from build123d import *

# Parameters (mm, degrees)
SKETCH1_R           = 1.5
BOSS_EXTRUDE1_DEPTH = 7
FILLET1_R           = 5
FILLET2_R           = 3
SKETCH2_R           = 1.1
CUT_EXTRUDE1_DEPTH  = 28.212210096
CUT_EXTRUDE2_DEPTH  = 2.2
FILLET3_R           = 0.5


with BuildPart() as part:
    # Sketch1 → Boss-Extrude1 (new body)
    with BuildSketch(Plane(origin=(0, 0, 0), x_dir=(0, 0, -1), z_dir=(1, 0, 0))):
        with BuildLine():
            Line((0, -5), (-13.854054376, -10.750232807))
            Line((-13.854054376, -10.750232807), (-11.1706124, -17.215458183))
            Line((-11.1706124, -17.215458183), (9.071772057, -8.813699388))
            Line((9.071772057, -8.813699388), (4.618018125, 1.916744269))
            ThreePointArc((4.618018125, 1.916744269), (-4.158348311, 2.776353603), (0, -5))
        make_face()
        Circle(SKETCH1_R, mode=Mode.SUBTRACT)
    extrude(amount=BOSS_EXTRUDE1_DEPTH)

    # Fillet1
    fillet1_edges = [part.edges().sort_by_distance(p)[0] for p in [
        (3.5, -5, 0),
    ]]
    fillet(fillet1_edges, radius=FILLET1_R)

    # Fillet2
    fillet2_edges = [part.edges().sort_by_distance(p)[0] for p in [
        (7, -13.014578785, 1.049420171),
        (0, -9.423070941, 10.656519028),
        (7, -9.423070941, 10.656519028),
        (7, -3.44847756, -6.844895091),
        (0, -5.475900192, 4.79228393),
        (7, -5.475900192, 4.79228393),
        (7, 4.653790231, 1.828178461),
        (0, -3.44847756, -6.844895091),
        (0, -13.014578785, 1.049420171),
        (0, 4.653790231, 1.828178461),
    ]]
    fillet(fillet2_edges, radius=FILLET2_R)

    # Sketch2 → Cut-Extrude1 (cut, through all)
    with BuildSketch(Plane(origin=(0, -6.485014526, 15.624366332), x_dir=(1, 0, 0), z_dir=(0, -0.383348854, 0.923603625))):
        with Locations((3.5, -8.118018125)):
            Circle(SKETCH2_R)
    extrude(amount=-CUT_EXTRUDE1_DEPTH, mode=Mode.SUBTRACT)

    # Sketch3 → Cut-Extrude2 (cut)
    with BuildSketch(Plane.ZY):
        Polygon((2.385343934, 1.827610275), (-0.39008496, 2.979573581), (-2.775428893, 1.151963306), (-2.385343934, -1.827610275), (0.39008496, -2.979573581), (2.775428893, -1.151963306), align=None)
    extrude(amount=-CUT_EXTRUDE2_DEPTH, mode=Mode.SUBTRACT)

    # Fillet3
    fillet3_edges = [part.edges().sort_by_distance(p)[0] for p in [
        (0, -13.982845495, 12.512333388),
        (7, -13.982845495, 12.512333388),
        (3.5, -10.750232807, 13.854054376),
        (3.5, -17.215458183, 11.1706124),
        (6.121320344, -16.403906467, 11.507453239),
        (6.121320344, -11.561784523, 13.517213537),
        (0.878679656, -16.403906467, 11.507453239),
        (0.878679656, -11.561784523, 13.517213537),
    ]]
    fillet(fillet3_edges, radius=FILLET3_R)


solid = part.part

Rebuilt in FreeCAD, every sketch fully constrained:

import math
import FreeCAD as App
import Part
import Sketcher

V = App.Vector
Q = App.Units.Quantity


def edges_at(feature, points):
    """Names of the edges that pass closest to the given points."""
    edges = feature.Shape.Edges
    near = lambda p: min(range(len(edges)), key=lambda i: edges[i].distToShape(Part.Vertex(*p))[0])
    return sorted({f"Edge{near(p) + 1}" for p in points})


def add_polygon(sketch, points):
    """Adds a closed chain of lines whose ends are joined by coincident constraints."""
    first, n = sketch.GeometryCount, len(points)
    for a, b in zip(points, points[1:] + points[:1]):
        sketch.addGeometry(Part.LineSegment(App.Vector(*a, 0), App.Vector(*b, 0)), False)
    for i in range(n):
        sketch.addConstraint(Sketcher.Constraint("Coincident", first + i, 2, first + (i + 1) % n, 1))

doc = App.newDocument("Part")
body = doc.addObject("PartDesign::Body", "Body")

# Sketch on YZ plane
sketch1 = body.newObject("Sketcher::SketchObject", "Sketch")
sketch1.AttachmentSupport = (doc.getObject("YZ_Plane"), [""])
sketch1.MapMode = "FlatFace"
sketch1.addGeometry(Part.LineSegment(V(-5, 0, 0), V(-10.8, 13.9, 0)), False)
sketch1.addGeometry(Part.LineSegment(V(-10.8, 13.9, 0), V(-17.2, 11.2, 0)), False)
sketch1.addGeometry(Part.LineSegment(V(-17.2, 11.2, 0), V(-8.8, -9.1, 0)), False)
sketch1.addGeometry(Part.LineSegment(V(-8.8, -9.1, 0), V(1.9, -4.6, 0)), False)
sketch1.addGeometry(Part.ArcOfCircle(Part.Circle(V(0, 0, 0), V(0, 0, 1), 5), math.radians(-67), math.radians(180)), False)
sketch1.addGeometry(Part.Circle(V(0, 0, 0), V(0, 0, 1), 1.5), False)
sketch1.addConstraint(Sketcher.Constraint("Coincident", 0, 2, 1, 1))
sketch1.addConstraint(Sketcher.Constraint("Coincident", 1, 2, 2, 1))
sketch1.addConstraint(Sketcher.Constraint("Coincident", 2, 2, 3, 1))
sketch1.addConstraint(Sketcher.Constraint("Tangent", 3, 2, 4, 1))
sketch1.addConstraint(Sketcher.Constraint("Coincident", 4, 2, 0, 1))
sketch1.addConstraint(Sketcher.Constraint("Coincident", 4, 3, -1, 1))
sketch1.addConstraint(Sketcher.Constraint("Coincident", 5, 3, -1, 1))
sketch1.addConstraint(Sketcher.Constraint("PointOnObject", 4, 2, -1))
sketch1.addConstraint(Sketcher.Constraint("Perpendicular", 0, 1))
sketch1.addConstraint(Sketcher.Constraint("Perpendicular", 1, 2))
sketch1.addConstraint(Sketcher.Constraint("Perpendicular", 2, 3))
sketch1.addConstraint(Sketcher.Constraint("Diameter", 5, Q("3 mm")))
sketch1.addConstraint(Sketcher.Constraint("Radius", 4, Q("5 mm")))
sketch1.addConstraint(Sketcher.Constraint("Distance", 0, Q("15 mm")))
sketch1.addConstraint(Sketcher.Constraint("Distance", 1, Q("7 mm")))
sketch1.addConstraint(Sketcher.Constraint("DistanceX", 2, 2, -1, 1, Q("8.813699 mm")))
pad1 = body.newObject("PartDesign::Pad", "Pad")
pad1.Profile = sketch1
pad1.Length = 7
doc.recompute()

fillet = body.newObject("PartDesign::Fillet", "Fillet")
fillet.Base = (pad1, edges_at(pad1, [(3.5, -5, 0)]))
fillet.Radius = 5
doc.recompute()

fillet2 = body.newObject("PartDesign::Fillet", "Fillet001")
fillet2.Base = (fillet, edges_at(fillet, [
    (7, -13.015, 1.049),
    (0, -9.423, 10.657),
    (7, -9.423, 10.657),
    (7, -3.448, -6.845),
    (0, -5.476, 4.792),
    (7, -5.476, 4.792),
    (7, 4.654, 1.828),
    (0, -3.448, -6.845),
    (0, -13.015, 1.049),
    (0, 4.654, 1.828),
]))
fillet2.Radius = 3

# Sketch on an angled plane
sketch2 = body.newObject("Sketcher::SketchObject", "Sketch001")
sketch2.Placement = App.Placement(V(0, -6.485015, 15.624366), App.Rotation(V(1, 0, 0), V(0, 0.923603625, 0.383348854), V(0, -0.383348854, 0.923603625), "ZXY"))
sketch2.addGeometry(Part.Circle(V(3.5, -8.1, 0), V(0, 0, 1), 1.1), False)
sketch2.addConstraint(Sketcher.Constraint("Diameter", 0, Q("2.2 mm")))
sketch2.addConstraint(Sketcher.Constraint("DistanceX", -1, 1, 0, 3, Q("3.5 mm")))
sketch2.addConstraint(Sketcher.Constraint("DistanceY", 0, 3, -1, 1, Q("8.118018 mm")))
pocket1 = body.newObject("PartDesign::Pocket", "Pocket")
pocket1.Profile = sketch2
pocket1.Type = "ThroughAll"

# Sketch on YZ plane
sketch3 = body.newObject("Sketcher::SketchObject", "Sketch002")
sketch3.AttachmentSupport = (doc.getObject("YZ_Plane"), [""])
sketch3.MapMode = "FlatFace"
add_polygon(sketch3, [(1.8, 2.4), (3, -0.4), (1.2, -2.8), (-1.8, -2.4), (-3, 0.4), (-1.2, 2.8)])  # lines 0-5
sketch3.addConstraint(Sketcher.Constraint("Symmetric", 0, 2, 3, 2, -1, 1))
sketch3.addConstraint(Sketcher.Constraint("Symmetric", 1, 2, 4, 2, -1, 1))
sketch3.addConstraint(Sketcher.Constraint("Symmetric", 2, 2, 5, 2, -1, 1))
sketch3.addConstraint(Sketcher.Constraint("Equal", 0, 1))
sketch3.addConstraint(Sketcher.Constraint("Equal", 1, 2))
sketch3.addConstraint(Sketcher.Constraint("Distance", 0, Q("3.005 mm")))
sketch3.addConstraint(Sketcher.Constraint("DistanceY", 1, 2, -1, 1, Q("2.775429 mm")))
sketch3.addConstraint(Sketcher.Constraint("DistanceX", 2, 2, -1, 1, Q("1.82761 mm")))
sketch3.addConstraint(Sketcher.Constraint("DistanceX", 1, 2, 0, 2, Q("1.82761 mm")))
pocket2 = body.newObject("PartDesign::Pocket", "Pocket001")
pocket2.Profile = sketch3
pocket2.Length = 2.2
pocket2.Reversed = True
doc.recompute()

fillet3 = body.newObject("PartDesign::Fillet", "Fillet002")
fillet3.Base = (pocket2, edges_at(pocket2, [
    (0, -13.983, 12.512),
    (7, -13.983, 12.512),
    (3.5, -10.75, 13.854),
    (3.5, -17.215, 11.171),
    (6.121, -16.404, 11.507),
    (6.121, -11.562, 13.517),
    (0.879, -16.404, 11.507),
    (0.879, -11.562, 13.517),
]))
fillet3.Radius = 0.5

doc.recompute()
